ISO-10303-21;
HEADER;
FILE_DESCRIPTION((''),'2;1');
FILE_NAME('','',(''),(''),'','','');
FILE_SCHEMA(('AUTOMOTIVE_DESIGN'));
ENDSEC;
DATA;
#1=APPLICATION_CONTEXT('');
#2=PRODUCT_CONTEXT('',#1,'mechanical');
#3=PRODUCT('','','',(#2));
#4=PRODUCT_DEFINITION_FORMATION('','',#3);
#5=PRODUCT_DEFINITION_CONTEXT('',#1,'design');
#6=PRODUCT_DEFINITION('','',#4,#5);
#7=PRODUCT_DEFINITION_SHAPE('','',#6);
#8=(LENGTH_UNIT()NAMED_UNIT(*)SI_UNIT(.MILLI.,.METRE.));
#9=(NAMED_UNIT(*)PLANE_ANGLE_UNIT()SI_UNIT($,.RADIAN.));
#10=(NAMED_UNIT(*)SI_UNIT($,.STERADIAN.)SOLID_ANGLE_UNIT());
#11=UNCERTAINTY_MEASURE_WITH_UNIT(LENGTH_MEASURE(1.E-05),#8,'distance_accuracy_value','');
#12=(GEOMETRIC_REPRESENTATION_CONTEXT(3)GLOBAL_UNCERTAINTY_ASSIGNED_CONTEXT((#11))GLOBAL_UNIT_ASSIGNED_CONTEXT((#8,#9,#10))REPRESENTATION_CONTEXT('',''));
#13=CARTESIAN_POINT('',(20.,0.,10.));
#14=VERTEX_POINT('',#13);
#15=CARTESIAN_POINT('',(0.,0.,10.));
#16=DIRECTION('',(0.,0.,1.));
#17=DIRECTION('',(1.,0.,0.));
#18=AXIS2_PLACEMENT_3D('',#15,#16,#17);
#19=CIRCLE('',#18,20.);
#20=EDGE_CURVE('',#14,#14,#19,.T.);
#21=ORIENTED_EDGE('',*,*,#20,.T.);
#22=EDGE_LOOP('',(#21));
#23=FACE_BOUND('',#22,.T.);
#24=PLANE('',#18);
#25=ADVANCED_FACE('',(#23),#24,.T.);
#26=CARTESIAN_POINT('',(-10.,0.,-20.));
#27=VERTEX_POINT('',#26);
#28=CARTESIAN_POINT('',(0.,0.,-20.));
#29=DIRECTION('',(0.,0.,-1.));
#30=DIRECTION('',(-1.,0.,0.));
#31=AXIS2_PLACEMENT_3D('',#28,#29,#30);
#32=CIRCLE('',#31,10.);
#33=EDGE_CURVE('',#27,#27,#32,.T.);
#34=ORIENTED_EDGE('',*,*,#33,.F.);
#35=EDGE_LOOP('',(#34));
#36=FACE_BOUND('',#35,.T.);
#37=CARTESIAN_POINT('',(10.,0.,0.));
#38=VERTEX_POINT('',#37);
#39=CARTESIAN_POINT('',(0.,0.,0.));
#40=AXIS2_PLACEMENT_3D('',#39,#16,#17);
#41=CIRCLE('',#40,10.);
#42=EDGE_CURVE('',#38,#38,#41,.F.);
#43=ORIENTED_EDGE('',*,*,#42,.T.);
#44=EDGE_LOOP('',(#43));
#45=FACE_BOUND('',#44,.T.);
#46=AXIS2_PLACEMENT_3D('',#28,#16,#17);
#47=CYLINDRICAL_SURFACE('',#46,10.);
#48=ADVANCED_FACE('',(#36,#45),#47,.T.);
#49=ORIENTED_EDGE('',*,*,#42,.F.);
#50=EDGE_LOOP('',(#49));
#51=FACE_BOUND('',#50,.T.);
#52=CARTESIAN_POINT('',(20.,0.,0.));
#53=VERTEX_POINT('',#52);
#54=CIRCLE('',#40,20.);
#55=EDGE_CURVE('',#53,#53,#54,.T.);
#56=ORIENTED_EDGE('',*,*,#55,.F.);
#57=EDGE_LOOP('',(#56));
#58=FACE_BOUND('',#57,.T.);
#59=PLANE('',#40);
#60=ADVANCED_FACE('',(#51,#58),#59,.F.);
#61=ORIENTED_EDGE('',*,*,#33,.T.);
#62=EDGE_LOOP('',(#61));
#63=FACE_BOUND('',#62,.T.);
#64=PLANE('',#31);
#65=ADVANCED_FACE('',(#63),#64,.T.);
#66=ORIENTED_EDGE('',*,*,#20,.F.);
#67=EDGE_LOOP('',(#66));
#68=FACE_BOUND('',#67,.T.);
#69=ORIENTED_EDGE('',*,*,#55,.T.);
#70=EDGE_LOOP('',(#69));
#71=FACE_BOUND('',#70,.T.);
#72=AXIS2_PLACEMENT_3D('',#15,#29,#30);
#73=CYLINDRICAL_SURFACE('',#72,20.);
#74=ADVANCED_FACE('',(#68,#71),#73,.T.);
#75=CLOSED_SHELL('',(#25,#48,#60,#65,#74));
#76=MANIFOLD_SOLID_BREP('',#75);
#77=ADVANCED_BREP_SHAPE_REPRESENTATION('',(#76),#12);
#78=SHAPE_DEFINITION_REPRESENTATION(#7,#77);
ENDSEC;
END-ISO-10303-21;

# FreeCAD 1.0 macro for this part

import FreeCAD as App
import Part
import Sketcher
from FreeCAD import Vector
Q = App.Units.Quantity

doc = App.newDocument("Part")
body = doc.addObject("PartDesign::Body", "Body")

sketch1 = doc.addObject("Sketcher::SketchObject", "Sketch")
body.addObject(sketch1)
sketch1.AttachmentSupport = (doc.XY_Plane, [""])
sketch1.MapMode = "FlatFace"
sketch1.addGeometry(Part.Circle(Vector(0, 0, 0), Vector(0, 0, 1), 20), False)
sketch1.addConstraint(Sketcher.Constraint("Coincident", 0, 3, -1, 1))
sketch1.addConstraint(Sketcher.Constraint("Diameter", 0, Q("40 mm")))
pad1 = doc.addObject("PartDesign::Pad", "Pad")
body.addObject(pad1)
pad1.Profile = sketch1
pad1.Length = 10

sketch2 = doc.addObject("Sketcher::SketchObject", "Sketch001")
body.addObject(sketch2)
sketch2.AttachmentSupport = (doc.XY_Plane, [""])
sketch2.MapMode = "FlatFace"
sketch2.addGeometry(Part.Circle(Vector(0, 0, 0), Vector(0, 0, 1), 10), False)
sketch2.addConstraint(Sketcher.Constraint("Coincident", 0, 3, -1, 1))
sketch2.addConstraint(Sketcher.Constraint("Diameter", 0, Q("20 mm")))
pad2 = doc.addObject("PartDesign::Pad", "Pad001")
body.addObject(pad2)
pad2.Profile = sketch2
pad2.Length = 20
pad2.Reversed = True

doc.recompute()
